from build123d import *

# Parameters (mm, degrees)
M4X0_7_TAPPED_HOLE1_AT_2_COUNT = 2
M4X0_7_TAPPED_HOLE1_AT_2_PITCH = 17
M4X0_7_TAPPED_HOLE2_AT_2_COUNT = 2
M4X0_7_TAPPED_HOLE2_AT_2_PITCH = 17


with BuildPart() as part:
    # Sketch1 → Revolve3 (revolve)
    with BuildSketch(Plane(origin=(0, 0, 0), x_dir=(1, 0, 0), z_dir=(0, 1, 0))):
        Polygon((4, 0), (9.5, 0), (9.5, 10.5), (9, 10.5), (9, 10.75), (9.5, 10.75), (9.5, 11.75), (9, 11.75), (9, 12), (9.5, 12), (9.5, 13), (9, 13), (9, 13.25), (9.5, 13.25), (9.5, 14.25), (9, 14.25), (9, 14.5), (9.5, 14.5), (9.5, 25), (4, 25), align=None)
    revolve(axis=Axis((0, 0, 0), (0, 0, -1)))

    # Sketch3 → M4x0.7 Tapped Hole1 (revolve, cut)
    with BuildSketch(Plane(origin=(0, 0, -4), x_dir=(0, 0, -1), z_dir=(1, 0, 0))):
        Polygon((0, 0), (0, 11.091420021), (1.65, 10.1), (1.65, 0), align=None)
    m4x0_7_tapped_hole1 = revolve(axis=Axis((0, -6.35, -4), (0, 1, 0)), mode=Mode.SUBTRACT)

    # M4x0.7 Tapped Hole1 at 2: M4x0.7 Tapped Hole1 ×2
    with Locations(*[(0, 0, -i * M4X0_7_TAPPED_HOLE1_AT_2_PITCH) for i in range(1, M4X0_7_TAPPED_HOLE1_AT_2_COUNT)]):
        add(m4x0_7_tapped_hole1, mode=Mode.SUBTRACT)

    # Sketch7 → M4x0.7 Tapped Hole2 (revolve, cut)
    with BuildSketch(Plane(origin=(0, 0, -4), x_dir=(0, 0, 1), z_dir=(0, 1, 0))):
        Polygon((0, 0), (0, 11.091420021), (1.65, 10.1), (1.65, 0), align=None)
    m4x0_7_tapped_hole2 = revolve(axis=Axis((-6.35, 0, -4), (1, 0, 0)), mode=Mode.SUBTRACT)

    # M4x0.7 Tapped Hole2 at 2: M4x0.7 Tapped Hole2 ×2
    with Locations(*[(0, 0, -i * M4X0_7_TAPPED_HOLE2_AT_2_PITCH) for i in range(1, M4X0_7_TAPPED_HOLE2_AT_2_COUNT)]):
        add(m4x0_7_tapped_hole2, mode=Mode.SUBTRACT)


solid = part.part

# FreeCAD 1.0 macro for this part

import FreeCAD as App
import Part
import Sketcher
Q = App.Units.Quantity

doc = App.newDocument("Part")
params = doc.addObject("Spreadsheet::Sheet", "Params")
for row, (alias, value) in enumerate([
    ("sketch1_height", "1 mm"),
    ("sketch1_height2", "25 mm"),
    ("sketch1_width", "5.5 mm"),
    ("sketch1_width2", "0.5 mm"),
    ("sketch1_height3", "10.5 mm"),
    ("revolution_angle", "360 deg"),
    ("sketch2_width", "10.1 mm"),
    ("sketch2_height", "1.65 mm"),
    ("groove_angle", "360 deg"),
    ("linearpattern_pitch", "17 mm"),
    ("sketch3_width", "10.1 mm"),
    ("sketch3_height", "1.65 mm"),
    ("groove2_angle", "360 deg"),
    ("linearpattern2_pitch", "17 mm"),
], start=1):
    params.set(f"A{row}", alias)
    params.set(f"B{row}", "=" + value)
    params.setAlias(f"B{row}", alias)

body = doc.addObject("PartDesign::Body", "Body")

# Sketch on XZ plane
sketch1 = body.newObject("Sketcher::SketchObject", "Sketch")
sketch1.AttachmentSupport = (doc.getObject("XZ_Plane"), [""])
sketch1.MapMode = "FlatFace"
sketch1.addGeometry([
    Part.LineSegment(App.Vector(4, 0, 0), App.Vector(9.5, 0, 0)),  # 0
    Part.LineSegment(App.Vector(9.5, 0, 0), App.Vector(9.5, -10.5, 0)),  # 1
    Part.LineSegment(App.Vector(9.5, -10.5, 0), App.Vector(9, -10.5, 0)),  # 2
    Part.LineSegment(App.Vector(9, -10.5, 0), App.Vector(9, -10.75, 0)),  # 3
    Part.LineSegment(App.Vector(9, -10.75, 0), App.Vector(9.5, -10.75, 0)),  # 4
    Part.LineSegment(App.Vector(9.5, -10.75, 0), App.Vector(9.5, -11.75, 0)),  # 5
    Part.LineSegment(App.Vector(9.5, -11.75, 0), App.Vector(9, -11.75, 0)),  # 6
    Part.LineSegment(App.Vector(9, -11.75, 0), App.Vector(9, -12, 0)),  # 7
    Part.LineSegment(App.Vector(9, -12, 0), App.Vector(9.5, -12, 0)),  # 8
    Part.LineSegment(App.Vector(9.5, -12, 0), App.Vector(9.5, -13, 0)),  # 9
    Part.LineSegment(App.Vector(9.5, -13, 0), App.Vector(9, -13, 0)),  # 10
    Part.LineSegment(App.Vector(9, -13, 0), App.Vector(9, -13.25, 0)),  # 11
    Part.LineSegment(App.Vector(9, -13.25, 0), App.Vector(9.5, -13.25, 0)),  # 12
    Part.LineSegment(App.Vector(9.5, -13.25, 0), App.Vector(9.5, -14.25, 0)),  # 13
    Part.LineSegment(App.Vector(9.5, -14.25, 0), App.Vector(9, -14.25, 0)),  # 14
    Part.LineSegment(App.Vector(9, -14.25, 0), App.Vector(9, -14.5, 0)),  # 15
    Part.LineSegment(App.Vector(9, -14.5, 0), App.Vector(9.5, -14.5, 0)),  # 16
    Part.LineSegment(App.Vector(9.5, -14.5, 0), App.Vector(9.5, -25, 0)),  # 17
    Part.LineSegment(App.Vector(9.5, -25, 0), App.Vector(4, -25, 0)),  # 18
    Part.LineSegment(App.Vector(4, -25, 0), App.Vector(4, 0, 0)),  # 19
], False)
sketch1.addConstraint([
    Sketcher.Constraint("Coincident", 0, 2, 1, 1),
    Sketcher.Constraint("Coincident", 1, 2, 2, 1),
    Sketcher.Constraint("Coincident", 2, 2, 3, 1),
    Sketcher.Constraint("Coincident", 3, 2, 4, 1),
    Sketcher.Constraint("Coincident", 4, 2, 5, 1),
    Sketcher.Constraint("Coincident", 5, 2, 6, 1),
    Sketcher.Constraint("Coincident", 6, 2, 7, 1),
    Sketcher.Constraint("Coincident", 7, 2, 8, 1),
    Sketcher.Constraint("Coincident", 8, 2, 9, 1),
    Sketcher.Constraint("Coincident", 9, 2, 10, 1),
    Sketcher.Constraint("Coincident", 10, 2, 11, 1),
    Sketcher.Constraint("Coincident", 11, 2, 12, 1),
    Sketcher.Constraint("Coincident", 12, 2, 13, 1),
    Sketcher.Constraint("Coincident", 13, 2, 14, 1),
    Sketcher.Constraint("Coincident", 14, 2, 15, 1),
    Sketcher.Constraint("Coincident", 15, 2, 16, 1),
    Sketcher.Constraint("Coincident", 16, 2, 17, 1),
    Sketcher.Constraint("Coincident", 17, 2, 18, 1),
    Sketcher.Constraint("Coincident", 18, 2, 19, 1),
    Sketcher.Constraint("Coincident", 19, 2, 0, 1),
    Sketcher.Constraint("Horizontal", 0),
    Sketcher.Constraint("Vertical", 1),
    Sketcher.Constraint("Horizontal", 2),
    Sketcher.Constraint("Vertical", 3),
    Sketcher.Constraint("Horizontal", 4),
    Sketcher.Constraint("Vertical", 5),
    Sketcher.Constraint("Horizontal", 6),
    Sketcher.Constraint("Vertical", 7),
    Sketcher.Constraint("Horizontal", 8),
    Sketcher.Constraint("Vertical", 9),
    Sketcher.Constraint("Horizontal", 10),
    Sketcher.Constraint("Vertical", 11),
    Sketcher.Constraint("Horizontal", 12),
    Sketcher.Constraint("Vertical", 13),
    Sketcher.Constraint("Horizontal", 14),
    Sketcher.Constraint("Vertical", 15),
    Sketcher.Constraint("Horizontal", 16),
    Sketcher.Constraint("Vertical", 17),
    Sketcher.Constraint("Horizontal", 18),
    Sketcher.Constraint("Vertical", 19),
    Sketcher.Constraint("PointOnObject", 0, 2, -1),
    Sketcher.Constraint("Vertical", 1, 2, 4, 2),
    Sketcher.Constraint("Vertical", 3, 2, 6, 2),
    Sketcher.Constraint("Vertical", 5, 2, 8, 2),
    Sketcher.Constraint("Vertical", 7, 2, 10, 2),
    Sketcher.Constraint("Vertical", 9, 2, 12, 2),
    Sketcher.Constraint("Vertical", 11, 2, 14, 2),
    Sketcher.Constraint("Vertical", 13, 2, 16, 2),
    Sketcher.Constraint("Equal", 3, 7),
    Sketcher.Constraint("Equal", 5, 9),
    Sketcher.Constraint("Equal", 7, 11),
    Sketcher.Constraint("Equal", 9, 13),
    Sketcher.Constraint("Equal", 11, 15),
    Sketcher.Constraint("Equal", 1, 17),
    Sketcher.Constraint("DistanceY", 5, 2, 5, 1, 1.0),
    Sketcher.Constraint("DistanceY", 19, 1, 19, 2, 25.0),
    Sketcher.Constraint("DistanceX", 0, 1, 0, 2, 5.5),
    Sketcher.Constraint("DistanceX", 2, 2, 2, 1, 0.5),
    Sketcher.Constraint("DistanceY", 1, 2, 1, 1, 10.5),
    Sketcher.Constraint("DistanceX", -1, 1, 2, 2, 9.0),
])
sketch1.setExpression("Constraints[54]", "Params.sketch1_height")
sketch1.setExpression("Constraints[55]", "Params.sketch1_height2")
sketch1.setExpression("Constraints[56]", "Params.sketch1_width")
sketch1.setExpression("Constraints[57]", "Params.sketch1_width2")
sketch1.setExpression("Constraints[58]", "Params.sketch1_height3")
revolution = body.newObject("PartDesign::Revolution", "Revolution")
revolution.Profile = sketch1
revolution.ReferenceAxis = (sketch1, ["V_Axis"])
revolution.setExpression("Angle", "Params.revolution_angle")

# Sketch on YZ plane
sketch2 = body.newObject("Sketcher::SketchObject", "Sketch001")
sketch2.AttachmentSupport = (doc.getObject("YZ_Plane"), [""])
sketch2.MapMode = "FlatFace"
sketch2.addGeometry([
    Part.LineSegment(App.Vector(11.1, -4, 0), App.Vector(0, -4, 0)),
    Part.LineSegment(App.Vector(0, -4, 0), App.Vector(0, -5.7, 0)),
    Part.LineSegment(App.Vector(0, -5.7, 0), App.Vector(10.1, -5.7, 0)),
    Part.LineSegment(App.Vector(10.1, -5.7, 0), App.Vector(11.1, -4, 0)),
], False)
sketch2.addGeometry(Part.LineSegment(App.Vector(0, -4, 0), App.Vector(11.1, -4, 0)), True)  # axis
sketch2.addConstraint([
    Sketcher.Constraint("Coincident", 0, 2, 1, 1),
    Sketcher.Constraint("Coincident", 1, 2, 2, 1),
    Sketcher.Constraint("Coincident", 2, 2, 3, 1),
    Sketcher.Constraint("Coincident", 3, 2, 0, 1),
    Sketcher.Constraint("Horizontal", 0),
    Sketcher.Constraint("Vertical", 1),
    Sketcher.Constraint("Horizontal", 2),
    Sketcher.Constraint("Horizontal", 4),
    Sketcher.Constraint("Coincident", 4, 1, 0, 2),
    Sketcher.Constraint("PointOnObject", 0, 2, -2),
    Sketcher.Constraint("Equal", 0, 4),
    Sketcher.Constraint("Angle", 3, Q("59 deg")),
    Sketcher.Constraint("DistanceX", 2, 1, 2, 2, 10.1),
    Sketcher.Constraint("DistanceY", 0, 2, -1, 1, 4.0),
    Sketcher.Constraint("DistanceY", 1, 2, 1, 1, 1.65),
])
sketch2.setExpression("Constraints[12]", "Params.sketch2_width")
sketch2.setExpression("Constraints[14]", "Params.sketch2_height")
groove = body.newObject("PartDesign::Groove", "Groove")
groove.Profile = sketch2
groove.ReferenceAxis = (sketch2, ["Axis0"])
groove.setExpression("Angle", "Params.groove_angle")
doc.recompute()

linearpattern = body.newObject("PartDesign::LinearPattern", "LinearPattern")
linearpattern.Originals = [groove]
linearpattern.Direction = (doc.getObject("Z_Axis"), [""])
linearpattern.Mode = "offset"
linearpattern.setExpression("Offset", "Params.linearpattern_pitch")
linearpattern.Occurrences = 2
linearpattern.Reversed = True
body.Tip = linearpattern

# Sketch on XZ plane
sketch3 = body.newObject("Sketcher::SketchObject", "Sketch002")
sketch3.AttachmentSupport = (doc.getObject("XZ_Plane"), [""])
sketch3.MapMode = "FlatFace"
sketch3.addGeometry([
    Part.LineSegment(App.Vector(11.1, -4, 0), App.Vector(0, -4, 0)),
    Part.LineSegment(App.Vector(0, -4, 0), App.Vector(0, -2.4, 0)),
    Part.LineSegment(App.Vector(0, -2.4, 0), App.Vector(10.1, -2.4, 0)),
    Part.LineSegment(App.Vector(10.1, -2.4, 0), App.Vector(11.1, -4, 0)),
], False)
sketch3.addGeometry(Part.LineSegment(App.Vector(0, -4, 0), App.Vector(11.1, -4, 0)), True)  # axis
sketch3.addConstraint([
    Sketcher.Constraint("Coincident", 0, 2, 1, 1),
    Sketcher.Constraint("Coincident", 1, 2, 2, 1),
    Sketcher.Constraint("Coincident", 2, 2, 3, 1),
    Sketcher.Constraint("Coincident", 3, 2, 0, 1),
    Sketcher.Constraint("Horizontal", 0),
    Sketcher.Constraint("Vertical", 1),
    Sketcher.Constraint("Horizontal", 2),
    Sketcher.Constraint("Horizontal", 4),
    Sketcher.Constraint("Coincident", 4, 1, 0, 2),
    Sketcher.Constraint("PointOnObject", 0, 2, -2),
    Sketcher.Constraint("Equal", 0, 4),
    Sketcher.Constraint("Angle", 3, Q("-59 deg")),
    Sketcher.Constraint("DistanceX", 2, 1, 2, 2, 10.1),
    Sketcher.Constraint("DistanceY", 0, 2, -1, 1, 4.0),
    Sketcher.Constraint("DistanceY", 1, 1, 1, 2, 1.65),
])
sketch3.setExpression("Constraints[12]", "Params.sketch3_width")
sketch3.setExpression("Constraints[14]", "Params.sketch3_height")
groove2 = body.newObject("PartDesign::Groove", "Groove001")
groove2.Profile = sketch3
groove2.ReferenceAxis = (sketch3, ["Axis0"])
groove2.setExpression("Angle", "Params.groove2_angle")
doc.recompute()

linearpattern2 = body.newObject("PartDesign::LinearPattern", "LinearPattern001")
linearpattern2.Originals = [groove2]
linearpattern2.Direction = (doc.getObject("Z_Axis"), [""])
linearpattern2.Mode = "offset"
linearpattern2.setExpression("Offset", "Params.linearpattern2_pitch")
linearpattern2.Occurrences = 2
linearpattern2.Reversed = True
body.Tip = linearpattern2

doc.recompute()
